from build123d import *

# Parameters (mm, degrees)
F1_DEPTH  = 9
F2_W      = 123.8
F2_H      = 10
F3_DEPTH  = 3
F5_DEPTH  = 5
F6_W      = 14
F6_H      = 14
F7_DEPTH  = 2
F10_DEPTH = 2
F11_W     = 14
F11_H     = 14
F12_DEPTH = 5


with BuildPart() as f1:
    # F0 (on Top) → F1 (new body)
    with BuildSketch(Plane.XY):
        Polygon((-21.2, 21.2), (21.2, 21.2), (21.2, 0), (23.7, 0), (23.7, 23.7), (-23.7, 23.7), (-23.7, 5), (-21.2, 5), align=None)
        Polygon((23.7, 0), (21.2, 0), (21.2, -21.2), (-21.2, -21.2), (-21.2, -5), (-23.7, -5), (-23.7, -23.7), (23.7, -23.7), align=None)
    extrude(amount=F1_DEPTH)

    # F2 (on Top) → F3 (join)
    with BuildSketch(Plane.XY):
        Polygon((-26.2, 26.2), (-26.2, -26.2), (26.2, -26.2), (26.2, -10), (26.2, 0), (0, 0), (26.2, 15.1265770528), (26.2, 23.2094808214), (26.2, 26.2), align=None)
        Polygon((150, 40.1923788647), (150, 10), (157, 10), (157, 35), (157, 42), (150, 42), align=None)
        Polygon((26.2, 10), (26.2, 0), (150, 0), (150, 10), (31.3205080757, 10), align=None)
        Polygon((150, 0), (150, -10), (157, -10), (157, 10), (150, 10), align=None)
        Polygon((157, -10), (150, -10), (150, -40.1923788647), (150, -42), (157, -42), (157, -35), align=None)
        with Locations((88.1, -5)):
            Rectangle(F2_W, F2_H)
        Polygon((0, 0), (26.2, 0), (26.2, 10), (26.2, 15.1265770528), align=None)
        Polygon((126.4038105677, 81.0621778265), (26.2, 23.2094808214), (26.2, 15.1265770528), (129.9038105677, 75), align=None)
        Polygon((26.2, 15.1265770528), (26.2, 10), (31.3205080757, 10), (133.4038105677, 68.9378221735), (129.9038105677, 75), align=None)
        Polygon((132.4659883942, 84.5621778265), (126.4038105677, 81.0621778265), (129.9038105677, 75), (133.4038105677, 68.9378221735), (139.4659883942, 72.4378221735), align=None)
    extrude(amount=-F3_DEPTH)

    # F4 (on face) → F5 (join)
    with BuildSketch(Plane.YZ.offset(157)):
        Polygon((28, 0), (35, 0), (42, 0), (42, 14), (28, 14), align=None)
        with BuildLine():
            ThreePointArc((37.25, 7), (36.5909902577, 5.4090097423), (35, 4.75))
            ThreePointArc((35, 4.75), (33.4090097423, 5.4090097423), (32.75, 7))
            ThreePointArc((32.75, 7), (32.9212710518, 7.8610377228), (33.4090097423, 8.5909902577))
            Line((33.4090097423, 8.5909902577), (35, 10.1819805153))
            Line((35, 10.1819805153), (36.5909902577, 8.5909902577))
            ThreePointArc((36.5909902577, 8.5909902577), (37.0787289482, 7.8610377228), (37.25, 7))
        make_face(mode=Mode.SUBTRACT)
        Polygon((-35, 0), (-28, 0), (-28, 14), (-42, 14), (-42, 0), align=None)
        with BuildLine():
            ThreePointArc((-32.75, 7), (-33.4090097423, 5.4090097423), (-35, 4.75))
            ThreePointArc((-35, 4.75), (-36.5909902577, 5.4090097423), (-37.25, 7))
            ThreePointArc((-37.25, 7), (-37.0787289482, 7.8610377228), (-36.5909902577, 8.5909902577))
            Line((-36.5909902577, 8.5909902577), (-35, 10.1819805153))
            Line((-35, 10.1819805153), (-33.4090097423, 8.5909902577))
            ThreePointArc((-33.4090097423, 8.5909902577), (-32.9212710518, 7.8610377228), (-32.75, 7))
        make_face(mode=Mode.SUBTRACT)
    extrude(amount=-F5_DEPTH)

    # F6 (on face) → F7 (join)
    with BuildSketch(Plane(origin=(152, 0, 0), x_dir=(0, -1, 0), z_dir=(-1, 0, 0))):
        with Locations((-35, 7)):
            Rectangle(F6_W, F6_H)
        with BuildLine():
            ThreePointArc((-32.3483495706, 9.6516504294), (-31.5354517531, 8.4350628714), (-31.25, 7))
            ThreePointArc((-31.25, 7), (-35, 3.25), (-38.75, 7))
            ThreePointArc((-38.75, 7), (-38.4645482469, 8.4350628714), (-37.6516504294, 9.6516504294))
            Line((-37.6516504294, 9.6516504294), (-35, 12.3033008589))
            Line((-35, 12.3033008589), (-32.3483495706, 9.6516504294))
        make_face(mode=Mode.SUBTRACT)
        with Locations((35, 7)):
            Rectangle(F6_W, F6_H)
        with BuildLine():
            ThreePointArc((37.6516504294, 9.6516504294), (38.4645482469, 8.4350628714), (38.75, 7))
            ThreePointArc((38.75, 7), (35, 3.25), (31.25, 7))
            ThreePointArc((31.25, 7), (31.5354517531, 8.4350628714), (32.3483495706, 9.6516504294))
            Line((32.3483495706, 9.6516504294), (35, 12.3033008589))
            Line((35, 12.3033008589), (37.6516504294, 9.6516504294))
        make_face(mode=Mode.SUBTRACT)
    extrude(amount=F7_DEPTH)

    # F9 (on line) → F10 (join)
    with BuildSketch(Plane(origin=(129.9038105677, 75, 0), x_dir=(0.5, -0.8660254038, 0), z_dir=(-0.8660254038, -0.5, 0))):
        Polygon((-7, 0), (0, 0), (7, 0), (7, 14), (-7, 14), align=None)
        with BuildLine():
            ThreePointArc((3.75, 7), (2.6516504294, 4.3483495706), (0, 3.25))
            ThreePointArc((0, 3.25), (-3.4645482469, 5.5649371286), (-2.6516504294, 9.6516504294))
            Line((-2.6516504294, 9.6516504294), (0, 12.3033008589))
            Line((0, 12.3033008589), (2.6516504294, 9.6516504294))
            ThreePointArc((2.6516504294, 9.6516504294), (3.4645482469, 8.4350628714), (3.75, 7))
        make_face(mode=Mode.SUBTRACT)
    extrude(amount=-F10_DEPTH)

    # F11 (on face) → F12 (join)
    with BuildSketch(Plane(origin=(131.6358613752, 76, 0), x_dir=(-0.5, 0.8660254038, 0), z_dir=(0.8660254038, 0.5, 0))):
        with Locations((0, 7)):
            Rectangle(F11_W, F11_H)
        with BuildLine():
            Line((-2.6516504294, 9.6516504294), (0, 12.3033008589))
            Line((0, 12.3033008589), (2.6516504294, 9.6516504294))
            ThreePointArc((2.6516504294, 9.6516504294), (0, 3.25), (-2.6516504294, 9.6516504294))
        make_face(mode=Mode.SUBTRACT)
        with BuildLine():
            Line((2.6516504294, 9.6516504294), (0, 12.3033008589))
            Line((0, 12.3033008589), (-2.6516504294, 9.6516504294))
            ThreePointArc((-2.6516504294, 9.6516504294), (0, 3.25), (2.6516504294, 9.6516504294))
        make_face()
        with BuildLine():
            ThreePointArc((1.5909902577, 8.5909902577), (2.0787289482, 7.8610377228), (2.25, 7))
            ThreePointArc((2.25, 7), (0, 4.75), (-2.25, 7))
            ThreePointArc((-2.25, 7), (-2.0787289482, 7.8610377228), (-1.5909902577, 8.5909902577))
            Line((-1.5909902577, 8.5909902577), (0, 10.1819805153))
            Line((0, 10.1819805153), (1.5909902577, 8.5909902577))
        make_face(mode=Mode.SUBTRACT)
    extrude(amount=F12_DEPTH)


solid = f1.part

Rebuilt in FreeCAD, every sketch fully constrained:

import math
import FreeCAD as App
import Part
import Sketcher
from FreeCAD import Vector
Q = App.Units.Quantity

doc = App.newDocument("Part")
body = doc.addObject("PartDesign::Body", "Body")

sketch1 = body.newObject("Sketcher::SketchObject", "Sketch")
sketch1.AttachmentSupport = (doc.getObject("XY_Plane"), [""])
sketch1.MapMode = "FlatFace"
sketch1.addGeometry(Part.LineSegment(Vector(-21.2, 21.2, 0), Vector(21.2, 21.2, 0)), False)
sketch1.addGeometry(Part.LineSegment(Vector(21.2, 21.2, 0), Vector(21.2, -21.2, 0)), False)
sketch1.addGeometry(Part.LineSegment(Vector(21.2, -21.2, 0), Vector(-21.2, -21.2, 0)), False)
sketch1.addGeometry(Part.LineSegment(Vector(-21.2, -21.2, 0), Vector(-21.2, -5, 0)), False)
sketch1.addGeometry(Part.LineSegment(Vector(-21.2, -5, 0), Vector(-23.7, -5, 0)), False)
sketch1.addGeometry(Part.LineSegment(Vector(-23.7, -5, 0), Vector(-23.7, -23.7, 0)), False)
sketch1.addGeometry(Part.LineSegment(Vector(-23.7, -23.7, 0), Vector(23.7, -23.7, 0)), False)
sketch1.addGeometry(Part.LineSegment(Vector(23.7, -23.7, 0), Vector(23.7, 23.7, 0)), False)
sketch1.addGeometry(Part.LineSegment(Vector(23.7, 23.7, 0), Vector(-23.7, 23.7, 0)), False)
sketch1.addGeometry(Part.LineSegment(Vector(-23.7, 23.7, 0), Vector(-23.7, 5, 0)), False)
sketch1.addGeometry(Part.LineSegment(Vector(-23.7, 5, 0), Vector(-21.2, 5, 0)), False)
sketch1.addGeometry(Part.LineSegment(Vector(-21.2, 5, 0), Vector(-21.2, 21.2, 0)), False)
sketch1.addConstraint(Sketcher.Constraint("Coincident", 0, 2, 1, 1))
sketch1.addConstraint(Sketcher.Constraint("Coincident", 1, 2, 2, 1))
sketch1.addConstraint(Sketcher.Constraint("Coincident", 2, 2, 3, 1))
sketch1.addConstraint(Sketcher.Constraint("Coincident", 3, 2, 4, 1))
sketch1.addConstraint(Sketcher.Constraint("Coincident", 4, 2, 5, 1))
sketch1.addConstraint(Sketcher.Constraint("Coincident", 5, 2, 6, 1))
sketch1.addConstraint(Sketcher.Constraint("Coincident", 6, 2, 7, 1))
sketch1.addConstraint(Sketcher.Constraint("Coincident", 7, 2, 8, 1))
sketch1.addConstraint(Sketcher.Constraint("Coincident", 8, 2, 9, 1))
sketch1.addConstraint(Sketcher.Constraint("Coincident", 9, 2, 10, 1))
sketch1.addConstraint(Sketcher.Constraint("Coincident", 10, 2, 11, 1))
sketch1.addConstraint(Sketcher.Constraint("Coincident", 11, 2, 0, 1))
sketch1.addConstraint(Sketcher.Constraint("Horizontal", 0))
sketch1.addConstraint(Sketcher.Constraint("Vertical", 1))
sketch1.addConstraint(Sketcher.Constraint("Horizontal", 2))
sketch1.addConstraint(Sketcher.Constraint("Vertical", 3))
sketch1.addConstraint(Sketcher.Constraint("Horizontal", 4))
sketch1.addConstraint(Sketcher.Constraint("Vertical", 5))
sketch1.addConstraint(Sketcher.Constraint("Horizontal", 6))
sketch1.addConstraint(Sketcher.Constraint("Vertical", 7))
sketch1.addConstraint(Sketcher.Constraint("Horizontal", 8))
sketch1.addConstraint(Sketcher.Constraint("Vertical", 9))
sketch1.addConstraint(Sketcher.Constraint("Horizontal", 10))
sketch1.addConstraint(Sketcher.Constraint("Vertical", 11))
sketch1.addConstraint(Sketcher.Constraint("Symmetric", 0, 2, 2, 2, -1, 1))
sketch1.addConstraint(Sketcher.Constraint("Symmetric", 5, 2, 7, 2, -1, 1))
sketch1.addConstraint(Sketcher.Constraint("Symmetric", 4, 2, 9, 2, -1))
sketch1.addConstraint(Sketcher.Constraint("Vertical", 3, 2, 10, 2))
sketch1.addConstraint(Sketcher.Constraint("Equal", 2, 1))
sketch1.addConstraint(Sketcher.Constraint("Equal", 8, 7))
sketch1.addConstraint(Sketcher.Constraint("DistanceX", 0, 1, 0, 2, 42.4))
sketch1.addConstraint(Sketcher.Constraint("DistanceX", 4, 2, 4, 1, 2.5))
sketch1.addConstraint(Sketcher.Constraint("DistanceY", 3, 1, 3, 2, 16.2))
pad1 = body.newObject("PartDesign::Pad", "Pad")
pad1.Profile = sketch1
pad1.Length = 9

sketch2 = body.newObject("Sketcher::SketchObject", "Sketch001")
sketch2.AttachmentSupport = (doc.getObject("XY_Plane"), [""])
sketch2.MapMode = "FlatFace"
sketch2.addGeometry(Part.LineSegment(Vector(26.2, 26.2, 0), Vector(-26.2, 26.2, 0)), False)
sketch2.addGeometry(Part.LineSegment(Vector(-26.2, 26.2, 0), Vector(-26.2, -26.2, 0)), False)
sketch2.addGeometry(Part.LineSegment(Vector(-26.2, -26.2, 0), Vector(26.2, -26.2, 0)), False)
sketch2.addGeometry(Part.LineSegment(Vector(26.2, -26.2, 0), Vector(26.2, -10, 0)), False)
sketch2.addGeometry(Part.LineSegment(Vector(26.2, -10, 0), Vector(150, -10, 0)), False)
sketch2.addGeometry(Part.LineSegment(Vector(150, -10, 0), Vector(150, -42, 0)), False)
sketch2.addGeometry(Part.LineSegment(Vector(150, -42, 0), Vector(157, -42, 0)), False)
sketch2.addGeometry(Part.LineSegment(Vector(157, -42, 0), Vector(157, 42, 0)), False)
sketch2.addGeometry(Part.LineSegment(Vector(157, 42, 0), Vector(150, 42, 0)), False)
sketch2.addGeometry(Part.LineSegment(Vector(150, 42, 0), Vector(150, 10, 0)), False)
sketch2.addGeometry(Part.LineSegment(Vector(150, 10, 0), Vector(31.3, 10, 0)), False)
sketch2.addGeometry(Part.LineSegment(Vector(31.3, 10, 0), Vector(139.5, 72.4, 0)), False)
sketch2.addGeometry(Part.LineSegment(Vector(139.5, 72.4, 0), Vector(132.5, 84.6, 0)), False)
sketch2.addGeometry(Part.LineSegment(Vector(132.5, 84.6, 0), Vector(26.2, 23.2, 0)), False)
sketch2.addGeometry(Part.LineSegment(Vector(26.2, 23.2, 0), Vector(26.2, 26.2, 0)), False)
sketch2.addConstraint(Sketcher.Constraint("Coincident", 0, 2, 1, 1))
sketch2.addConstraint(Sketcher.Constraint("Coincident", 1, 2, 2, 1))
sketch2.addConstraint(Sketcher.Constraint("Coincident", 2, 2, 3, 1))
sketch2.addConstraint(Sketcher.Constraint("Coincident", 3, 2, 4, 1))
sketch2.addConstraint(Sketcher.Constraint("Coincident", 4, 2, 5, 1))
sketch2.addConstraint(Sketcher.Constraint("Coincident", 5, 2, 6, 1))
sketch2.addConstraint(Sketcher.Constraint("Coincident", 6, 2, 7, 1))
sketch2.addConstraint(Sketcher.Constraint("Coincident", 7, 2, 8, 1))
sketch2.addConstraint(Sketcher.Constraint("Coincident", 8, 2, 9, 1))
sketch2.addConstraint(Sketcher.Constraint("Coincident", 9, 2, 10, 1))
sketch2.addConstraint(Sketcher.Constraint("Coincident", 10, 2, 11, 1))
sketch2.addConstraint(Sketcher.Constraint("Coincident", 11, 2, 12, 1))
sketch2.addConstraint(Sketcher.Constraint("Coincident", 12, 2, 13, 1))
sketch2.addConstraint(Sketcher.Constraint("Coincident", 13, 2, 14, 1))
sketch2.addConstraint(Sketcher.Constraint("Coincident", 14, 2, 0, 1))
sketch2.addConstraint(Sketcher.Constraint("Horizontal", 0))
sketch2.addConstraint(Sketcher.Constraint("Vertical", 1))
sketch2.addConstraint(Sketcher.Constraint("Horizontal", 2))
sketch2.addConstraint(Sketcher.Constraint("Vertical", 3))
sketch2.addConstraint(Sketcher.Constraint("Horizontal", 4))
sketch2.addConstraint(Sketcher.Constraint("Vertical", 5))
sketch2.addConstraint(Sketcher.Constraint("Horizontal", 6))
sketch2.addConstraint(Sketcher.Constraint("Vertical", 7))
sketch2.addConstraint(Sketcher.Constraint("Horizontal", 8))
sketch2.addConstraint(Sketcher.Constraint("Vertical", 9))
sketch2.addConstraint(Sketcher.Constraint("Horizontal", 10))
sketch2.addConstraint(Sketcher.Constraint("Vertical", 14))
sketch2.addConstraint(Sketcher.Constraint("Symmetric", 0, 2, 2, 2, -1, 1))
sketch2.addConstraint(Sketcher.Constraint("Symmetric", 5, 2, 8, 2, -1))
sketch2.addConstraint(Sketcher.Constraint("Perpendicular", 11, 12))
sketch2.addConstraint(Sketcher.Constraint("Perpendicular", 12, 13))
sketch2.addConstraint(Sketcher.Constraint("Vertical", 3, 2, 13, 2))
sketch2.addConstraint(Sketcher.Constraint("Equal", 2, 1))
sketch2.addConstraint(Sketcher.Constraint("Equal", 5, 9))
sketch2.addConstraint(Sketcher.Constraint("DistanceX", 6, 1, 6, 2, 7.0))
sketch2.addConstraint(Sketcher.Constraint("DistanceY", 5, 2, 5, 1, 32.0))
sketch2.addConstraint(Sketcher.Constraint("DistanceY", 7, 1, 7, 2, 84.0))
sketch2.addConstraint(Sketcher.Constraint("Angle", 11, Q("30 deg")))
sketch2.addConstraint(Sketcher.Constraint("Distance", 12, 14.0))
sketch2.addConstraint(Sketcher.Constraint("DistanceX", 0, 2, 0, 1, 52.4))
sketch2.addConstraint(Sketcher.Constraint("DistanceX", 4, 1, 4, 2, 123.8))
sketch2.addConstraint(Sketcher.Constraint("DistanceX", 10, 2, 10, 1, 118.679492))
sketch2.addConstraint(Sketcher.Constraint("DistanceX", -1, 1, 11, 2, 139.465988))
pad2 = body.newObject("PartDesign::Pad", "Pad001")
pad2.Profile = sketch2
pad2.Length = 3
pad2.Reversed = True

sketch3 = body.newObject("Sketcher::SketchObject", "Sketch002")
sketch3.AttachmentSupport = (doc.getObject("YZ_Plane"), [""])
sketch3.MapMode = "FlatFace"
sketch3.AttachmentOffset = App.Placement(Vector(0, 0, 157), App.Rotation())
sketch3.addGeometry(Part.LineSegment(Vector(28, 0, 0), Vector(42, 0, 0)), False)
sketch3.addGeometry(Part.LineSegment(Vector(42, 0, 0), Vector(42, 14, 0)), False)
sketch3.addGeometry(Part.LineSegment(Vector(42, 14, 0), Vector(28, 14, 0)), False)
sketch3.addGeometry(Part.LineSegment(Vector(28, 14, 0), Vector(28, 0, 0)), False)
sketch3.addGeometry(Part.ArcOfCircle(Part.Circle(Vector(35, 7, 0), Vector(0, 0, 1), 2.2), math.radians(0), math.radians(45)), False)
sketch3.addGeometry(Part.ArcOfCircle(Part.Circle(Vector(35, 7, 0), Vector(0, 0, 1), 2.2), math.radians(-90), math.radians(0)), False)
sketch3.addGeometry(Part.ArcOfCircle(Part.Circle(Vector(35, 7, 0), Vector(0, 0, 1), 2.2), math.radians(180), math.radians(270)), False)
sketch3.addGeometry(Part.ArcOfCircle(Part.Circle(Vector(35, 7, 0), Vector(0, 0, 1), 2.2), math.radians(135), math.radians(180)), False)
sketch3.addGeometry(Part.LineSegment(Vector(33.4, 8.6, 0), Vector(35, 10.2, 0)), False)
sketch3.addGeometry(Part.LineSegment(Vector(35, 10.2, 0), Vector(36.6, 8.6, 0)), False)
sketch3.addGeometry(Part.LineSegment(Vector(-28, 0, 0), Vector(-28, 14, 0)), False)
sketch3.addGeometry(Part.LineSegment(Vector(-28, 14, 0), Vector(-42, 14, 0)), False)
sketch3.addGeometry(Part.LineSegment(Vector(-42, 14, 0), Vector(-42, 0, 0)), False)
sketch3.addGeometry(Part.LineSegment(Vector(-42, 0, 0), Vector(-28, 0, 0)), False)
sketch3.addGeometry(Part.ArcOfCircle(Part.Circle(Vector(-35, 7, 0), Vector(0, 0, 1), 2.2), math.radians(0), math.radians(45)), False)
sketch3.addGeometry(Part.ArcOfCircle(Part.Circle(Vector(-35, 7, 0), Vector(0, 0, 1), 2.2), math.radians(-90), math.radians(0)), False)
sketch3.addGeometry(Part.ArcOfCircle(Part.Circle(Vector(-35, 7, 0), Vector(0, 0, 1), 2.2), math.radians(180), math.radians(270)), False)
sketch3.addGeometry(Part.ArcOfCircle(Part.Circle(Vector(-35, 7, 0), Vector(0, 0, 1), 2.2), math.radians(135), math.radians(180)), False)
sketch3.addGeometry(Part.LineSegment(Vector(-36.6, 8.6, 0), Vector(-35, 10.2, 0)), False)
sketch3.addGeometry(Part.LineSegment(Vector(-35, 10.2, 0), Vector(-33.4, 8.6, 0)), False)
sketch3.addConstraint(Sketcher.Constraint("Coincident", 0, 2, 1, 1))
sketch3.addConstraint(Sketcher.Constraint("Coincident", 1, 2, 2, 1))
sketch3.addConstraint(Sketcher.Constraint("Coincident", 2, 2, 3, 1))
sketch3.addConstraint(Sketcher.Constraint("Coincident", 3, 2, 0, 1))
sketch3.addConstraint(Sketcher.Constraint("Tangent", 4, 1, 5, 2))
sketch3.addConstraint(Sketcher.Constraint("Tangent", 5, 1, 6, 2))
sketch3.addConstraint(Sketcher.Constraint("Tangent", 6, 1, 7, 2))
sketch3.addConstraint(Sketcher.Constraint("Tangent", 7, 1, 8, 1))
sketch3.addConstraint(Sketcher.Constraint("Coincident", 8, 2, 9, 1))
sketch3.addConstraint(Sketcher.Constraint("Tangent", 9, 2, 4, 2))
sketch3.addConstraint(Sketcher.Constraint("Coincident", 10, 2, 11, 1))
sketch3.addConstraint(Sketcher.Constraint("Coincident", 11, 2, 12, 1))
sketch3.addConstraint(Sketcher.Constraint("Coincident", 12, 2, 13, 1))
sketch3.addConstraint(Sketcher.Constraint("Coincident", 13, 2, 10, 1))
sketch3.addConstraint(Sketcher.Constraint("Tangent", 14, 1, 15, 2))
sketch3.addConstraint(Sketcher.Constraint("Tangent", 15, 1, 16, 2))
sketch3.addConstraint(Sketcher.Constraint("Tangent", 16, 1, 17, 2))
sketch3.addConstraint(Sketcher.Constraint("Tangent", 17, 1, 18, 1))
sketch3.addConstraint(Sketcher.Constraint("Coincident", 18, 2, 19, 1))
sketch3.addConstraint(Sketcher.Constraint("Tangent", 19, 2, 14, 2))
sketch3.addConstraint(Sketcher.Constraint("Horizontal", 0))
sketch3.addConstraint(Sketcher.Constraint("Vertical", 1))
sketch3.addConstraint(Sketcher.Constraint("Horizontal", 2))
sketch3.addConstraint(Sketcher.Constraint("Vertical", 3))
sketch3.addConstraint(Sketcher.Constraint("Vertical", 10))
sketch3.addConstraint(Sketcher.Constraint("Horizontal", 11))
sketch3.addConstraint(Sketcher.Constraint("Vertical", 12))
sketch3.addConstraint(Sketcher.Constraint("Horizontal", 13))
sketch3.addConstraint(Sketcher.Constraint("Coincident", 6, 3, 4, 3))
sketch3.addConstraint(Sketcher.Constraint("Coincident", 16, 3, 14, 3))
sketch3.addConstraint(Sketcher.Constraint("Equal", 6, 7))
sketch3.addConstraint(Sketcher.Constraint("Equal", 7, 14))
sketch3.addConstraint(Sketcher.Constraint("Equal", 16, 17))
sketch3.addConstraint(Sketcher.Constraint("Symmetric", 0, 2, 12, 2, -1, 1))
sketch3.addConstraint(Sketcher.Constraint("Symmetric", 4, 3, 14, 3, -2))
sketch3.addConstraint(Sketcher.Constraint("Symmetric", 2, 2, 10, 2, -2))
sketch3.addConstraint(Sketcher.Constraint("Symmetric", 8, 2, 18, 2, -2))
sketch3.addConstraint(Sketcher.Constraint("PointOnObject", 0, 2, -1))
sketch3.addConstraint(Sketcher.Constraint("Perpendicular", 8, 9))
sketch3.addConstraint(Sketcher.Constraint("Perpendicular", 9, 18))
sketch3.addConstraint(Sketcher.Constraint("Horizontal", 17, 3, 4, 1))
sketch3.addConstraint(Sketcher.Constraint("Horizontal", 4, 1, 6, 1))
sketch3.addConstraint(Sketcher.Constraint("Horizontal", 6, 1, 14, 1))
sketch3.addConstraint(Sketcher.Constraint("Horizontal", 14, 1, 16, 1))
sketch3.addConstraint(Sketcher.Constraint("Vertical", 7, 3, 5, 1))
sketch3.addConstraint(Sketcher.Constraint("Vertical", 17, 3, 15, 1))
sketch3.addConstraint(Sketcher.Constraint("Equal", 13, 1))
sketch3.addConstraint(Sketcher.Constraint("DistanceX", 0, 1, 0, 2, 14.0))
sketch3.addConstraint(Sketcher.Constraint("Radius", 4, 2.25))
sketch3.addConstraint(Sketcher.Constraint("DistanceX", -1, 1, 4, 3, 35.0))
sketch3.addConstraint(Sketcher.Constraint("DistanceY", -1, 1, 4, 3, 7.0))
sketch3.addConstraint(Sketcher.Constraint("DistanceX", -1, 1, 0, 2, 42.0))
pad3 = body.newObject("PartDesign::Pad", "Pad002")
pad3.Profile = sketch3
pad3.Length = 5
pad3.Reversed = True

sketch4 = body.newObject("Sketcher::SketchObject", "Sketch003")
sketch4.AttachmentSupport = (doc.getObject("YZ_Plane"), [""])
sketch4.MapMode = "FlatFace"
sketch4.AttachmentOffset = App.Placement(Vector(0, 0, 152), App.Rotation())
sketch4.addGeometry(Part.LineSegment(Vector(42, 14, 0), Vector(42, 0, 0)), False)
sketch4.addGeometry(Part.LineSegment(Vector(42, 0, 0), Vector(28, 0, 0)), False)
sketch4.addGeometry(Part.LineSegment(Vector(28, 0, 0), Vector(28, 14, 0)), False)
sketch4.addGeometry(Part.LineSegment(Vector(28, 14, 0), Vector(42, 14, 0)), False)
sketch4.addGeometry(Part.LineSegment(Vector(35, 12.3, 0), Vector(32.3, 9.7, 0)), False)
sketch4.addGeometry(Part.ArcOfCircle(Part.Circle(Vector(35, 7, 0), Vector(0, 0, 1), 3.8), math.radians(135), math.radians(180)), False)
sketch4.addGeometry(Part.ArcOfCircle(Part.Circle(Vector(35, 7, 0), Vector(0, 0, 1), 3.8), math.radians(180), math.radians(360)), False)
sketch4.addGeometry(Part.ArcOfCircle(Part.Circle(Vector(35, 7, 0), Vector(0, 0, 1), 3.8), math.radians(0), math.radians(45)), False)
sketch4.addGeometry(Part.LineSegment(Vector(37.7, 9.7, 0), Vector(35, 12.3, 0)), False)
sketch4.addGeometry(Part.LineSegment(Vector(-28, 14, 0), Vector(-28, 0, 0)), False)
sketch4.addGeometry(Part.LineSegment(Vector(-28, 0, 0), Vector(-42, 0, 0)), False)
sketch4.addGeometry(Part.LineSegment(Vector(-42, 0, 0), Vector(-42, 14, 0)), False)
sketch4.addGeometry(Part.LineSegment(Vector(-42, 14, 0), Vector(-28, 14, 0)), False)
sketch4.addGeometry(Part.LineSegment(Vector(-35, 12.3, 0), Vector(-37.7, 9.7, 0)), False)
sketch4.addGeometry(Part.ArcOfCircle(Part.Circle(Vector(-35, 7, 0), Vector(0, 0, 1), 3.8), math.radians(135), math.radians(180)), False)
sketch4.addGeometry(Part.ArcOfCircle(Part.Circle(Vector(-35, 7, 0), Vector(0, 0, 1), 3.8), math.radians(180), math.radians(360)), False)
sketch4.addGeometry(Part.ArcOfCircle(Part.Circle(Vector(-35, 7, 0), Vector(0, 0, 1), 3.8), math.radians(0), math.radians(45)), False)
sketch4.addGeometry(Part.LineSegment(Vector(-32.3, 9.7, 0), Vector(-35, 12.3, 0)), False)
sketch4.addConstraint(Sketcher.Constraint("Coincident", 0, 2, 1, 1))
sketch4.addConstraint(Sketcher.Constraint("Coincident", 1, 2, 2, 1))
sketch4.addConstraint(Sketcher.Constraint("Coincident", 2, 2, 3, 1))
sketch4.addConstraint(Sketcher.Constraint("Coincident", 3, 2, 0, 1))
sketch4.addConstraint(Sketcher.Constraint("Tangent", 4, 2, 5, 1))
sketch4.addConstraint(Sketcher.Constraint("Tangent", 5, 2, 6, 1))
sketch4.addConstraint(Sketcher.Constraint("Tangent", 6, 2, 7, 1))
sketch4.addConstraint(Sketcher.Constraint("Tangent", 7, 2, 8, 1))
sketch4.addConstraint(Sketcher.Constraint("Coincident", 8, 2, 4, 1))
sketch4.addConstraint(Sketcher.Constraint("Coincident", 9, 2, 10, 1))
sketch4.addConstraint(Sketcher.Constraint("Coincident", 10, 2, 11, 1))
sketch4.addConstraint(Sketcher.Constraint("Coincident", 11, 2, 12, 1))
sketch4.addConstraint(Sketcher.Constraint("Coincident", 12, 2, 9, 1))
sketch4.addConstraint(Sketcher.Constraint("Tangent", 13, 2, 14, 1))
sketch4.addConstraint(Sketcher.Constraint("Tangent", 14, 2, 15, 1))
sketch4.addConstraint(Sketcher.Constraint("Tangent", 15, 2, 16, 1))
sketch4.addConstraint(Sketcher.Constraint("Tangent", 16, 2, 17, 1))
sketch4.addConstraint(Sketcher.Constraint("Coincident", 17, 2, 13, 1))
sketch4.addConstraint(Sketcher.Constraint("Vertical", 0))
sketch4.addConstraint(Sketcher.Constraint("Horizontal", 1))
sketch4.addConstraint(Sketcher.Constraint("Vertical", 2))
sketch4.addConstraint(Sketcher.Constraint("Horizontal", 3))
sketch4.addConstraint(Sketcher.Constraint("Vertical", 9))
sketch4.addConstraint(Sketcher.Constraint("Horizontal", 10))
sketch4.addConstraint(Sketcher.Constraint("Vertical", 11))
sketch4.addConstraint(Sketcher.Constraint("Horizontal", 12))
sketch4.addConstraint(Sketcher.Constraint("Equal", 5, 6))
sketch4.addConstraint(Sketcher.Constraint("Equal", 6, 7))
sketch4.addConstraint(Sketcher.Constraint("Equal", 7, 14))
sketch4.addConstraint(Sketcher.Constraint("Equal", 14, 15))
sketch4.addConstraint(Sketcher.Constraint("Equal", 15, 16))
sketch4.addConstraint(Sketcher.Constraint("Symmetric", 1, 2, 9, 2, -1, 1))
sketch4.addConstraint(Sketcher.Constraint("Symmetric", 5, 3, 14, 3, -2))
sketch4.addConstraint(Sketcher.Constraint("Symmetric", 0, 2, 10, 2, -2))
sketch4.addConstraint(Sketcher.Constraint("Symmetric", 8, 2, 17, 2, -2))
sketch4.addConstraint(Sketcher.Constraint("Perpendicular", 4, 8))
sketch4.addConstraint(Sketcher.Constraint("Perpendicular", 8, 13))
sketch4.addConstraint(Sketcher.Constraint("Horizontal", 16, 3, 5, 2))
sketch4.addConstraint(Sketcher.Constraint("Horizontal", 5, 2, 6, 2))
sketch4.addConstraint(Sketcher.Constraint("Horizontal", 3, 2, 11, 2))
sketch4.addConstraint(Sketcher.Constraint("Horizontal", 6, 2, 14, 2))
sketch4.addConstraint(Sketcher.Constraint("Horizontal", 14, 2, 15, 2))
sketch4.addConstraint(Sketcher.Constraint("Equal", 12, 0))
sketch4.addConstraint(Sketcher.Constraint("DistanceX", 1, 2, 1, 1, 14.0))
sketch4.addConstraint(Sketcher.Constraint("Radius", 5, 3.75))
sketch4.addConstraint(Sketcher.Constraint("DistanceX", -1, 1, 5, 3, 35.0))
sketch4.addConstraint(Sketcher.Constraint("DistanceY", -1, 1, 5, 3, 7.0))
sketch4.addConstraint(Sketcher.Constraint("DistanceX", -1, 1, 0, 2, 42.0))
pad4 = body.newObject("PartDesign::Pad", "Pad003")
pad4.Profile = sketch4
pad4.Length = 2
pad4.Reversed = True

sketch5 = body.newObject("Sketcher::SketchObject", "Sketch004")
sketch5.Placement = App.Placement(Vector(129.903811, 75, 0), App.Rotation(Vector(0.5, -0.866025404, 0), Vector(0, 0, 1), Vector(-0.866025404, -0.5, 0), "ZXY"))
sketch5.addGeometry(Part.LineSegment(Vector(-7, 0, 0), Vector(7, 0, 0)), False)
sketch5.addGeometry(Part.LineSegment(Vector(7, 0, 0), Vector(7, 14, 0)), False)
sketch5.addGeometry(Part.LineSegment(Vector(7, 14, 0), Vector(-7, 14, 0)), False)
sketch5.addGeometry(Part.LineSegment(Vector(-7, 14, 0), Vector(-7, 0, 0)), False)
sketch5.addGeometry(Part.ArcOfCircle(Part.Circle(Vector(0, 7, 0), Vector(0, 0, 1), 3.8), math.radians(0), math.radians(45)), False)
sketch5.addGeometry(Part.ArcOfCircle(Part.Circle(Vector(0, 7, 0), Vector(0, 0, 1), 3.8), math.radians(-90), math.radians(0)), False)
sketch5.addGeometry(Part.ArcOfCircle(Part.Circle(Vector(0, 7, 0), Vector(0, 0, 1), 3.8), math.radians(135), math.radians(270)), False)
sketch5.addGeometry(Part.LineSegment(Vector(-2.7, 9.7, 0), Vector(0, 12.3, 0)), False)
sketch5.addGeometry(Part.LineSegment(Vector(0, 12.3, 0), Vector(2.7, 9.7, 0)), False)
sketch5.addConstraint(Sketcher.Constraint("Coincident", 0, 2, 1, 1))
sketch5.addConstraint(Sketcher.Constraint("Coincident", 1, 2, 2, 1))
sketch5.addConstraint(Sketcher.Constraint("Coincident", 2, 2, 3, 1))
sketch5.addConstraint(Sketcher.Constraint("Coincident", 3, 2, 0, 1))
sketch5.addConstraint(Sketcher.Constraint("Tangent", 4, 1, 5, 2))
sketch5.addConstraint(Sketcher.Constraint("Tangent", 5, 1, 6, 2))
sketch5.addConstraint(Sketcher.Constraint("Tangent", 6, 1, 7, 1))
sketch5.addConstraint(Sketcher.Constraint("Coincident", 7, 2, 8, 1))
sketch5.addConstraint(Sketcher.Constraint("Tangent", 8, 2, 4, 2))
sketch5.addConstraint(Sketcher.Constraint("Horizontal", 0))
sketch5.addConstraint(Sketcher.Constraint("Vertical", 1))
sketch5.addConstraint(Sketcher.Constraint("Horizontal", 2))
sketch5.addConstraint(Sketcher.Constraint("Vertical", 3))
sketch5.addConstraint(Sketcher.Constraint("Coincident", 6, 3, 4, 3))
sketch5.addConstraint(Sketcher.Constraint("Symmetric", 0, 2, 3, 2, -1, 1))
sketch5.addConstraint(Sketcher.Constraint("Symmetric", 6, 1, 8, 2, -2))
sketch5.addConstraint(Sketcher.Constraint("PointOnObject", 5, 1, -2))
sketch5.addConstraint(Sketcher.Constraint("Perpendicular", 7, 8))
sketch5.addConstraint(Sketcher.Constraint("Horizontal", 6, 3, 4, 1))
sketch5.addConstraint(Sketcher.Constraint("Equal", 2, 1))
sketch5.addConstraint(Sketcher.Constraint("DistanceX", 0, 1, 0, 2, 14.0))
sketch5.addConstraint(Sketcher.Constraint("Radius", 4, 3.75))
sketch5.addConstraint(Sketcher.Constraint("DistanceY", -1, 1, 4, 3, 7.0))
pad5 = body.newObject("PartDesign::Pad", "Pad004")
pad5.Profile = sketch5
pad5.Length = 2
pad5.Reversed = True

sketch6 = body.newObject("Sketcher::SketchObject", "Sketch005")
sketch6.Placement = App.Placement(Vector(131.635861, 76, 0), App.Rotation(Vector(-0.5, 0.866025404, 0), Vector(0, 0, 1), Vector(0.866025404, 0.5, 0), "ZXY"))
sketch6.addGeometry(Part.LineSegment(Vector(-7, 14, 0), Vector(-7, 0, 0)), False)
sketch6.addGeometry(Part.LineSegment(Vector(-7, 0, 0), Vector(7, 0, 0)), False)
sketch6.addGeometry(Part.LineSegment(Vector(7, 0, 0), Vector(7, 14, 0)), False)
sketch6.addGeometry(Part.LineSegment(Vector(7, 14, 0), Vector(-7, 14, 0)), False)
sketch6.addGeometry(Part.LineSegment(Vector(0, 10.2, 0), Vector(1.6, 8.6, 0)), False)
sketch6.addGeometry(Part.ArcOfCircle(Part.Circle(Vector(0, 7, 0), Vector(0, 0, 1), 2.2), math.radians(0), math.radians(45)), False)
sketch6.addGeometry(Part.ArcOfCircle(Part.Circle(Vector(0, 7, 0), Vector(0, 0, 1), 2.2), math.radians(180), math.radians(360)), False)
sketch6.addGeometry(Part.ArcOfCircle(Part.Circle(Vector(0, 7, 0), Vector(0, 0, 1), 2.2), math.radians(135), math.radians(180)), False)
sketch6.addGeometry(Part.LineSegment(Vector(-1.6, 8.6, 0), Vector(0, 10.2, 0)), False)
sketch6.addConstraint(Sketcher.Constraint("Coincident", 0, 2, 1, 1))
sketch6.addConstraint(Sketcher.Constraint("Coincident", 1, 2, 2, 1))
sketch6.addConstraint(Sketcher.Constraint("Coincident", 2, 2, 3, 1))
sketch6.addConstraint(Sketcher.Constraint("Coincident", 3, 2, 0, 1))
sketch6.addConstraint(Sketcher.Constraint("Tangent", 4, 2, 5, 2))
sketch6.addConstraint(Sketcher.Constraint("Tangent", 5, 1, 6, 2))
sketch6.addConstraint(Sketcher.Constraint("Tangent", 6, 1, 7, 2))
sketch6.addConstraint(Sketcher.Constraint("Tangent", 7, 1, 8, 1))
sketch6.addConstraint(Sketcher.Constraint("Coincident", 8, 2, 4, 1))
sketch6.addConstraint(Sketcher.Constraint("Vertical", 0))
sketch6.addConstraint(Sketcher.Constraint("Horizontal", 1))
sketch6.addConstraint(Sketcher.Constraint("Vertical", 2))
sketch6.addConstraint(Sketcher.Constraint("Horizontal", 3))
sketch6.addConstraint(Sketcher.Constraint("Equal", 5, 6))
sketch6.addConstraint(Sketcher.Constraint("Equal", 6, 7))
sketch6.addConstraint(Sketcher.Constraint("Symmetric", 0, 2, 1, 2, -1, 1))
sketch6.addConstraint(Sketcher.Constraint("Symmetric", 5, 1, 6, 1, -2))
sketch6.addConstraint(Sketcher.Constraint("PointOnObject", 8, 2, -2))
sketch6.addConstraint(Sketcher.Constraint("Perpendicular", 4, 8))
sketch6.addConstraint(Sketcher.Constraint("Horizontal", 7, 3, 5, 1))
sketch6.addConstraint(Sketcher.Constraint("Equal", 3, 0))
sketch6.addConstraint(Sketcher.Constraint("DistanceX", 1, 1, 1, 2, 14.0))
sketch6.addConstraint(Sketcher.Constraint("Radius", 5, 2.25))
sketch6.addConstraint(Sketcher.Constraint("DistanceY", -1, 1, 5, 3, 7.0))
pad6 = body.newObject("PartDesign::Pad", "Pad005")
pad6.Profile = sketch6
pad6.Length = 5

doc.recompute()
